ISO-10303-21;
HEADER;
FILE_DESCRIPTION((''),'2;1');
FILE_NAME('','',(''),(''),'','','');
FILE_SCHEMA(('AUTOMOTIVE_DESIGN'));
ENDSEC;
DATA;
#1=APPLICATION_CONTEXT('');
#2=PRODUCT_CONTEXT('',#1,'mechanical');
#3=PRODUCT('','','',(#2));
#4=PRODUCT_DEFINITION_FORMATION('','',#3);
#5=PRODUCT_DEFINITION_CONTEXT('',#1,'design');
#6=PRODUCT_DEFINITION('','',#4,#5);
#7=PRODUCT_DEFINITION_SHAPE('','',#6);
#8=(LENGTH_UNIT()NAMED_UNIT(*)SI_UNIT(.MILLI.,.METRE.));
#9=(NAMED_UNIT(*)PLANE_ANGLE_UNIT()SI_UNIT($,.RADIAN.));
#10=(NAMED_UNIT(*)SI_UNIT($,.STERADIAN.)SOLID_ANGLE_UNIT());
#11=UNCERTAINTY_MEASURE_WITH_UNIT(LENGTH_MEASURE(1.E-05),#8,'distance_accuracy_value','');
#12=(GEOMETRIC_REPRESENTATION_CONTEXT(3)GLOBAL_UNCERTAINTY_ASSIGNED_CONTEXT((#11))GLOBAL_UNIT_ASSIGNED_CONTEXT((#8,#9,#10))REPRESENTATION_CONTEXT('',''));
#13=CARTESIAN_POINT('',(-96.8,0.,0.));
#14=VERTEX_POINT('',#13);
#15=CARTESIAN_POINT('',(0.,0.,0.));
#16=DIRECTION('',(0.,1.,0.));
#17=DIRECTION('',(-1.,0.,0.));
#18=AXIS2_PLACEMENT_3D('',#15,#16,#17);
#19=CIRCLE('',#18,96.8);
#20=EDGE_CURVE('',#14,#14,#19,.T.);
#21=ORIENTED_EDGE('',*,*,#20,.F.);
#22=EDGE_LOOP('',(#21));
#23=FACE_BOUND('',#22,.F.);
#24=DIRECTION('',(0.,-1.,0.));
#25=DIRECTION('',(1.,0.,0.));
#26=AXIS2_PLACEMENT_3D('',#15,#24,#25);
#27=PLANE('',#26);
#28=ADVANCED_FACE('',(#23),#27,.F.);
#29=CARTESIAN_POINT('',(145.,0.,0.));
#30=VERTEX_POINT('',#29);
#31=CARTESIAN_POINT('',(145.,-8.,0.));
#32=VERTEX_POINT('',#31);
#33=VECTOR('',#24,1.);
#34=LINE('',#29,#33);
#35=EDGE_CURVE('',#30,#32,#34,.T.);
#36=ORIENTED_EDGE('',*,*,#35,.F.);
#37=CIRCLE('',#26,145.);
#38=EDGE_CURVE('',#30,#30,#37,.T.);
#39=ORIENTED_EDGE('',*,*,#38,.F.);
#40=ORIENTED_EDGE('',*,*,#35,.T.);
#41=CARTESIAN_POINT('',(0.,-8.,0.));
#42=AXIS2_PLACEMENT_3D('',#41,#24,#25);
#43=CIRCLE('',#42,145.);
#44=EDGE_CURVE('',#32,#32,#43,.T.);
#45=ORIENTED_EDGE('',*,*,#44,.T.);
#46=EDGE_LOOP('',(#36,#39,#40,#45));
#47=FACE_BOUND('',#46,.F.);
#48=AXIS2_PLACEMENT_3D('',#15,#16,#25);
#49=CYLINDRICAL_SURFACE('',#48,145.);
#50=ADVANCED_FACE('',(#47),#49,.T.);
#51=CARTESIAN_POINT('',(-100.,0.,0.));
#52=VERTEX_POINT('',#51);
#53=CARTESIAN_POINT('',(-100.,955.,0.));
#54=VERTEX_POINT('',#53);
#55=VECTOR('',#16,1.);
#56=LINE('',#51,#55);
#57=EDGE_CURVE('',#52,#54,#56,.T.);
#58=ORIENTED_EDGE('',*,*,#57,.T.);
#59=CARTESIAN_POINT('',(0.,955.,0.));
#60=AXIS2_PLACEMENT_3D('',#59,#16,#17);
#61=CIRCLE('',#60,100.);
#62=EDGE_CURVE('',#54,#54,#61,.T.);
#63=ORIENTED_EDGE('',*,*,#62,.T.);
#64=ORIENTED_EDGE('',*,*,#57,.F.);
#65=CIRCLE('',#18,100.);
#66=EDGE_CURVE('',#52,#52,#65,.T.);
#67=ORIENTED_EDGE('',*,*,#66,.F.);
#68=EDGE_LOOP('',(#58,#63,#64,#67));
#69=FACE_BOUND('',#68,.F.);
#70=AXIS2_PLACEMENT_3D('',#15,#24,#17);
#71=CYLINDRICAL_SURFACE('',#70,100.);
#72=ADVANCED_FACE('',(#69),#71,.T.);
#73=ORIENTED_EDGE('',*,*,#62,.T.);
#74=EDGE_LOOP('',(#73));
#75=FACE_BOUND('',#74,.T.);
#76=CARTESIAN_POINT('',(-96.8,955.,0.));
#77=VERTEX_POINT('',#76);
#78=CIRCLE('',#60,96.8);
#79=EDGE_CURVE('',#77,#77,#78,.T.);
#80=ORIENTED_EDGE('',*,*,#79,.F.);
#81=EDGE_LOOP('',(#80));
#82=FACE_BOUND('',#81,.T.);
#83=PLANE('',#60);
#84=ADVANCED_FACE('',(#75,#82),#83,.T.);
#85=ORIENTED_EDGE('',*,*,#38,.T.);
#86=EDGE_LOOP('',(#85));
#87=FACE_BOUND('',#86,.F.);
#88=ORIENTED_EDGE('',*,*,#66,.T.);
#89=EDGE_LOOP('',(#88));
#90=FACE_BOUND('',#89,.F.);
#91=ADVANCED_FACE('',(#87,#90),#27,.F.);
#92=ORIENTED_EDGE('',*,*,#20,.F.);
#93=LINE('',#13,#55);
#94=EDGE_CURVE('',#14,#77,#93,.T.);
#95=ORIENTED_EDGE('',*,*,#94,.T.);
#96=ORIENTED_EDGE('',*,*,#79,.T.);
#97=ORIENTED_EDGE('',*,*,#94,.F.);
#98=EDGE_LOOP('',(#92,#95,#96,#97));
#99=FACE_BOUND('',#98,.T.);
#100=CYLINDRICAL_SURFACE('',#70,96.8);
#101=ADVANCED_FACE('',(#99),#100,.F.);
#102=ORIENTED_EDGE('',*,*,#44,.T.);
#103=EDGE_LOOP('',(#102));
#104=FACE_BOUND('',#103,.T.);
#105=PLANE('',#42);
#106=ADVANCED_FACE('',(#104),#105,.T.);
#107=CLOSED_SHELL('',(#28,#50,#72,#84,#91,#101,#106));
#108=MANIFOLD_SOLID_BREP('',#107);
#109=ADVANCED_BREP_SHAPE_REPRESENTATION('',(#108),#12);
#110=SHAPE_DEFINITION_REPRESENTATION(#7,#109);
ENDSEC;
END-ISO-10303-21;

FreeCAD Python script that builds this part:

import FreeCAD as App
import Part
import Sketcher
Q = App.Units.Quantity

doc = App.newDocument("Part")
body = doc.addObject("PartDesign::Body", "Body")

# Sketch on XZ plane
sketch1 = body.newObject("Sketcher::SketchObject", "Sketch")
sketch1.AttachmentSupport = (doc.getObject("XZ_Plane"), [""])
sketch1.MapMode = "FlatFace"
sketch1.addGeometry([
    Part.Circle(App.Vector(0, 0, 0), App.Vector(0, 0, 1), 100),
    Part.Circle(App.Vector(0, 0, 0), App.Vector(0, 0, 1), 97),
], False)
sketch1.addConstraint([
    Sketcher.Constraint("Coincident", 0, 3, -1, 1),
    Sketcher.Constraint("Coincident", 1, 3, -1, 1),
    Sketcher.Constraint("Diameter", 0, Q("200 mm")),
    Sketcher.Constraint("Diameter", 1, Q("193.6 mm")),
])
pad1 = body.newObject("PartDesign::Pad", "Pad")
pad1.Profile = sketch1
pad1.Length = 955
pad1.Reversed = True

# Sketch on XZ plane
sketch2 = body.newObject("Sketcher::SketchObject", "Sketch001")
sketch2.AttachmentSupport = (doc.getObject("XZ_Plane"), [""])
sketch2.MapMode = "FlatFace"
sketch2.addGeometry(Part.Circle(App.Vector(0, 0, 0), App.Vector(0, 0, 1), 145), False)
sketch2.addConstraint([
    Sketcher.Constraint("Coincident", 0, 3, -1, 1),
    Sketcher.Constraint("Diameter", 0, Q("290 mm")),
])
pad2 = body.newObject("PartDesign::Pad", "Pad001")
pad2.Profile = sketch2
pad2.Length = 8

doc.recompute()
